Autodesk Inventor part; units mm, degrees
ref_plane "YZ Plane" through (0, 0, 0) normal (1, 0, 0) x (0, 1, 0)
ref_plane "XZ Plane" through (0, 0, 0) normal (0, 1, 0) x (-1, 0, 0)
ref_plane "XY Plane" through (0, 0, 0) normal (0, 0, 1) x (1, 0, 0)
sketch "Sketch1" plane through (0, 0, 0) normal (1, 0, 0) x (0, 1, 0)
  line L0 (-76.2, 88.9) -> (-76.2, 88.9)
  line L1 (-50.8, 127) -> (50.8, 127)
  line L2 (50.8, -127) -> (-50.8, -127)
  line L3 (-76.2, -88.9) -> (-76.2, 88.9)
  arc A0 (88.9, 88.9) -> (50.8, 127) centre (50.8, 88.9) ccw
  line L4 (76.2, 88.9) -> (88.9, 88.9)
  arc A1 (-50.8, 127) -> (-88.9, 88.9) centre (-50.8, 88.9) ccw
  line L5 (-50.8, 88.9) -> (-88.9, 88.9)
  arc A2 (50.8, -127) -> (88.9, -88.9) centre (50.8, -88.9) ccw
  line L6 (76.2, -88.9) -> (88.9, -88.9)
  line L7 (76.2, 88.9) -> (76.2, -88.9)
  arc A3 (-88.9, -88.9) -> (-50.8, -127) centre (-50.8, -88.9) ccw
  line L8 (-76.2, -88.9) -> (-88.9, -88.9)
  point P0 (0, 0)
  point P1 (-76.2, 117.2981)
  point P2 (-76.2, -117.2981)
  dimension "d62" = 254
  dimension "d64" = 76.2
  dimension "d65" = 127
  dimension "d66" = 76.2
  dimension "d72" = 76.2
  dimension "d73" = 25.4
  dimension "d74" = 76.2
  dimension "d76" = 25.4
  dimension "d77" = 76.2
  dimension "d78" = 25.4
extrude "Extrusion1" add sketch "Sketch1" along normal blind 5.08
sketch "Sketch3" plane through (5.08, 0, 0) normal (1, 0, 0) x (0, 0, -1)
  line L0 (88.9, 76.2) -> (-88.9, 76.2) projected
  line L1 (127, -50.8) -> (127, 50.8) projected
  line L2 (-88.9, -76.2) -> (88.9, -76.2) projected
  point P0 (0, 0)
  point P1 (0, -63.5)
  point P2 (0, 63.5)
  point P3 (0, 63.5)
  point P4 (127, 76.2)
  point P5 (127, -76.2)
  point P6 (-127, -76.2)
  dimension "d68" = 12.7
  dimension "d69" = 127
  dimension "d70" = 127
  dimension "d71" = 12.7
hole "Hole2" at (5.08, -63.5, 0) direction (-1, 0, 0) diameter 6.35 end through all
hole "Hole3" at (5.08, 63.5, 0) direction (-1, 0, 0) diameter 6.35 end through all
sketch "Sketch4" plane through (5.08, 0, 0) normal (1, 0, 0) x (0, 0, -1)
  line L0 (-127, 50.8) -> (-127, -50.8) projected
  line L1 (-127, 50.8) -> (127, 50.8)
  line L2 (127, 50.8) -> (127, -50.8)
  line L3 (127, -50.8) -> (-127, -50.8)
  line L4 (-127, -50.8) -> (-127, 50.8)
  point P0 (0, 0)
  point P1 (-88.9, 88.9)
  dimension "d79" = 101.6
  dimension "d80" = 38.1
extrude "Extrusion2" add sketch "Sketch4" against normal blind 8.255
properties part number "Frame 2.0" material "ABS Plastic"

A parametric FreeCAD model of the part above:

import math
import FreeCAD as App
import Part
import Sketcher
from FreeCAD import Vector
Q = App.Units.Quantity

doc = App.newDocument("Part")
params = doc.addObject("Spreadsheet::Sheet", "Params")
for row, (alias, value) in enumerate([
    ("sketch1_radius", "1.5 in"),
    ("pad1_length", "0.2 in"),
    ("sketch2_diameter", "0.25 in"),
    ("hole_diameter", "0.25 in"),
    ("sketch3_diameter", "0.25 in"),
    ("hole2_diameter", "0.25 in"),
    ("sketch4_width", "4 in"),
    ("sketch4_height", "10 in"),
    ("pad2_length", "0.325 in"),
], start=1):
    params.set(f"A{row}", alias)
    params.set(f"B{row}", "=" + value)
    params.setAlias(f"B{row}", alias)

body = doc.addObject("PartDesign::Body", "Body")

# Sketch on YZ plane
sketch1 = body.newObject("Sketcher::SketchObject", "Sketch")
sketch1.AttachmentSupport = (doc.getObject("YZ_Plane"), [""])
sketch1.MapMode = "FlatFace"
sketch1.addGeometry(Part.LineSegment(Vector(51, 127, 0), Vector(-51, 127, 0)), False)
sketch1.addGeometry(Part.ArcOfCircle(Part.Circle(Vector(-51, 89, 0), Vector(0, 0, 1), 38), math.radians(90), math.radians(180)), False)
sketch1.addGeometry(Part.LineSegment(Vector(-89, 89, 0), Vector(-76, 89, 0)), False)
sketch1.addGeometry(Part.LineSegment(Vector(-76, 89, 0), Vector(-76, -89, 0)), False)
sketch1.addGeometry(Part.LineSegment(Vector(-76, -89, 0), Vector(-89, -89, 0)), False)
sketch1.addGeometry(Part.ArcOfCircle(Part.Circle(Vector(-51, -89, 0), Vector(0, 0, 1), 38), math.radians(180), math.radians(270)), False)
sketch1.addGeometry(Part.LineSegment(Vector(-51, -127, 0), Vector(51, -127, 0)), False)
sketch1.addGeometry(Part.ArcOfCircle(Part.Circle(Vector(51, -89, 0), Vector(0, 0, 1), 38), math.radians(-90), math.radians(0)), False)
sketch1.addGeometry(Part.LineSegment(Vector(89, -89, 0), Vector(76, -89, 0)), False)
sketch1.addGeometry(Part.LineSegment(Vector(76, -89, 0), Vector(76, 89, 0)), False)
sketch1.addGeometry(Part.LineSegment(Vector(76, 89, 0), Vector(89, 89, 0)), False)
sketch1.addGeometry(Part.ArcOfCircle(Part.Circle(Vector(51, 89, 0), Vector(0, 0, 1), 38), math.radians(0), math.radians(90)), False)
sketch1.addConstraint(Sketcher.Constraint("Tangent", 0, 2, 1, 1))
sketch1.addConstraint(Sketcher.Constraint("Coincident", 1, 2, 2, 1))
sketch1.addConstraint(Sketcher.Constraint("Coincident", 2, 2, 3, 1))
sketch1.addConstraint(Sketcher.Constraint("Coincident", 3, 2, 4, 1))
sketch1.addConstraint(Sketcher.Constraint("Coincident", 4, 2, 5, 1))
sketch1.addConstraint(Sketcher.Constraint("Tangent", 5, 2, 6, 1))
sketch1.addConstraint(Sketcher.Constraint("Tangent", 6, 2, 7, 1))
sketch1.addConstraint(Sketcher.Constraint("Coincident", 7, 2, 8, 1))
sketch1.addConstraint(Sketcher.Constraint("Coincident", 8, 2, 9, 1))
sketch1.addConstraint(Sketcher.Constraint("Coincident", 9, 2, 10, 1))
sketch1.addConstraint(Sketcher.Constraint("Coincident", 10, 2, 11, 1))
sketch1.addConstraint(Sketcher.Constraint("Tangent", 11, 2, 0, 1))
sketch1.addConstraint(Sketcher.Constraint("Horizontal", 0))
sketch1.addConstraint(Sketcher.Constraint("Horizontal", 2))
sketch1.addConstraint(Sketcher.Constraint("Vertical", 3))
sketch1.addConstraint(Sketcher.Constraint("Horizontal", 4))
sketch1.addConstraint(Sketcher.Constraint("Horizontal", 6))
sketch1.addConstraint(Sketcher.Constraint("Horizontal", 8))
sketch1.addConstraint(Sketcher.Constraint("Vertical", 9))
sketch1.addConstraint(Sketcher.Constraint("Horizontal", 10))
sketch1.addConstraint(Sketcher.Constraint("Equal", 1, 5))
sketch1.addConstraint(Sketcher.Constraint("Equal", 5, 7))
sketch1.addConstraint(Sketcher.Constraint("Equal", 7, 11))
sketch1.addConstraint(Sketcher.Constraint("Symmetric", 1, 3, 7, 3, -1, 1))
sketch1.addConstraint(Sketcher.Constraint("Symmetric", 2, 2, 8, 2, -1, 1))
sketch1.addConstraint(Sketcher.Constraint("Symmetric", 4, 2, 10, 2, -1, 1))
sketch1.addConstraint(Sketcher.Constraint("Symmetric", 4, 2, 7, 2, -2))
sketch1.addConstraint(Sketcher.Constraint("Horizontal", 11, 3, 1, 2))
sketch1.addConstraint(Sketcher.Constraint("Radius", 1, Q("1.5 in")))
sketch1.addConstraint(Sketcher.Constraint("DistanceY", -1, 1, 0, 2, Q("5 in")))
sketch1.addConstraint(Sketcher.Constraint("DistanceX", 2, 2, -1, 1, Q("3 in")))
sketch1.addConstraint(Sketcher.Constraint("DistanceX", 2, 2, 1, 3, Q("1 in")))
sketch1.setExpression("Constraints[28]", "Params.sketch1_radius")
pad1 = body.newObject("PartDesign::Pad", "Pad")
pad1.Profile = sketch1
pad1.setExpression("Length", "Params.pad1_length")

# Sketch on YZ plane
sketch2 = body.newObject("Sketcher::SketchObject", "Sketch001")
sketch2.AttachmentSupport = (doc.getObject("YZ_Plane"), [""])
sketch2.MapMode = "FlatFace"
sketch2.AttachmentOffset = App.Placement(Vector(0, 0, 0.2 * 25.4), App.Rotation())
sketch2.addGeometry(Part.Circle(Vector(-63.5, 0, 0), Vector(0, 0, 1), 3.2), False)
sketch2.addConstraint(Sketcher.Constraint("PointOnObject", 0, 3, -1))
sketch2.addConstraint(Sketcher.Constraint("Diameter", 0, Q("0.25 in")))
sketch2.addConstraint(Sketcher.Constraint("DistanceX", 0, 3, -1, 1, Q("2.5 in")))
sketch2.setExpression("Constraints[1]", "Params.sketch2_diameter")
doc.recompute()
hole = body.newObject("PartDesign::Hole", "Hole")
hole.Profile = sketch2
hole.ThreadType = "None"
hole.setExpression("Diameter", "Params.hole_diameter")
hole.DepthType = "ThroughAll"

# Sketch on YZ plane
sketch3 = body.newObject("Sketcher::SketchObject", "Sketch002")
sketch3.AttachmentSupport = (doc.getObject("YZ_Plane"), [""])
sketch3.MapMode = "FlatFace"
sketch3.AttachmentOffset = App.Placement(Vector(0, 0, 0.2 * 25.4), App.Rotation())
sketch3.addGeometry(Part.Circle(Vector(63.5, 0, 0), Vector(0, 0, 1), 3.2), False)
sketch3.addConstraint(Sketcher.Constraint("PointOnObject", 0, 3, -1))
sketch3.addConstraint(Sketcher.Constraint("Diameter", 0, Q("0.25 in")))
sketch3.addConstraint(Sketcher.Constraint("DistanceX", -1, 1, 0, 3, Q("2.5 in")))
sketch3.setExpression("Constraints[1]", "Params.sketch3_diameter")
doc.recompute()
hole2 = body.newObject("PartDesign::Hole", "Hole001")
hole2.Profile = sketch3
hole2.ThreadType = "None"
hole2.setExpression("Diameter", "Params.hole2_diameter")
hole2.DepthType = "ThroughAll"

# Sketch on YZ plane
sketch4 = body.newObject("Sketcher::SketchObject", "Sketch003")
sketch4.AttachmentSupport = (doc.getObject("YZ_Plane"), [""])
sketch4.MapMode = "FlatFace"
sketch4.AttachmentOffset = App.Placement(Vector(0, 0, 0.2 * 25.4), App.Rotation())
sketch4.addGeometry(Part.LineSegment(Vector(51, -127, 0), Vector(51, 127, 0)), False)
sketch4.addGeometry(Part.LineSegment(Vector(51, 127, 0), Vector(-51, 127, 0)), False)
sketch4.addGeometry(Part.LineSegment(Vector(-51, 127, 0), Vector(-51, -127, 0)), False)
sketch4.addGeometry(Part.LineSegment(Vector(-51, -127, 0), Vector(51, -127, 0)), False)
sketch4.addConstraint(Sketcher.Constraint("Coincident", 0, 2, 1, 1))
sketch4.addConstraint(Sketcher.Constraint("Coincident", 1, 2, 2, 1))
sketch4.addConstraint(Sketcher.Constraint("Coincident", 2, 2, 3, 1))
sketch4.addConstraint(Sketcher.Constraint("Coincident", 3, 2, 0, 1))
sketch4.addConstraint(Sketcher.Constraint("Vertical", 0))
sketch4.addConstraint(Sketcher.Constraint("Horizontal", 1))
sketch4.addConstraint(Sketcher.Constraint("Vertical", 2))
sketch4.addConstraint(Sketcher.Constraint("Horizontal", 3))
sketch4.addConstraint(Sketcher.Constraint("Symmetric", 0, 2, 2, 2, -1, 1))
sketch4.addConstraint(Sketcher.Constraint("DistanceX", 1, 2, 1, 1, Q("4 in")))
sketch4.addConstraint(Sketcher.Constraint("DistanceY", 0, 1, 0, 2, Q("10 in")))
sketch4.setExpression("Constraints[9]", "Params.sketch4_width")
sketch4.setExpression("Constraints[10]", "Params.sketch4_height")
pad2 = body.newObject("PartDesign::Pad", "Pad001")
pad2.Profile = sketch4
pad2.setExpression("Length", "Params.pad2_length")
pad2.Reversed = True

doc.recompute()
